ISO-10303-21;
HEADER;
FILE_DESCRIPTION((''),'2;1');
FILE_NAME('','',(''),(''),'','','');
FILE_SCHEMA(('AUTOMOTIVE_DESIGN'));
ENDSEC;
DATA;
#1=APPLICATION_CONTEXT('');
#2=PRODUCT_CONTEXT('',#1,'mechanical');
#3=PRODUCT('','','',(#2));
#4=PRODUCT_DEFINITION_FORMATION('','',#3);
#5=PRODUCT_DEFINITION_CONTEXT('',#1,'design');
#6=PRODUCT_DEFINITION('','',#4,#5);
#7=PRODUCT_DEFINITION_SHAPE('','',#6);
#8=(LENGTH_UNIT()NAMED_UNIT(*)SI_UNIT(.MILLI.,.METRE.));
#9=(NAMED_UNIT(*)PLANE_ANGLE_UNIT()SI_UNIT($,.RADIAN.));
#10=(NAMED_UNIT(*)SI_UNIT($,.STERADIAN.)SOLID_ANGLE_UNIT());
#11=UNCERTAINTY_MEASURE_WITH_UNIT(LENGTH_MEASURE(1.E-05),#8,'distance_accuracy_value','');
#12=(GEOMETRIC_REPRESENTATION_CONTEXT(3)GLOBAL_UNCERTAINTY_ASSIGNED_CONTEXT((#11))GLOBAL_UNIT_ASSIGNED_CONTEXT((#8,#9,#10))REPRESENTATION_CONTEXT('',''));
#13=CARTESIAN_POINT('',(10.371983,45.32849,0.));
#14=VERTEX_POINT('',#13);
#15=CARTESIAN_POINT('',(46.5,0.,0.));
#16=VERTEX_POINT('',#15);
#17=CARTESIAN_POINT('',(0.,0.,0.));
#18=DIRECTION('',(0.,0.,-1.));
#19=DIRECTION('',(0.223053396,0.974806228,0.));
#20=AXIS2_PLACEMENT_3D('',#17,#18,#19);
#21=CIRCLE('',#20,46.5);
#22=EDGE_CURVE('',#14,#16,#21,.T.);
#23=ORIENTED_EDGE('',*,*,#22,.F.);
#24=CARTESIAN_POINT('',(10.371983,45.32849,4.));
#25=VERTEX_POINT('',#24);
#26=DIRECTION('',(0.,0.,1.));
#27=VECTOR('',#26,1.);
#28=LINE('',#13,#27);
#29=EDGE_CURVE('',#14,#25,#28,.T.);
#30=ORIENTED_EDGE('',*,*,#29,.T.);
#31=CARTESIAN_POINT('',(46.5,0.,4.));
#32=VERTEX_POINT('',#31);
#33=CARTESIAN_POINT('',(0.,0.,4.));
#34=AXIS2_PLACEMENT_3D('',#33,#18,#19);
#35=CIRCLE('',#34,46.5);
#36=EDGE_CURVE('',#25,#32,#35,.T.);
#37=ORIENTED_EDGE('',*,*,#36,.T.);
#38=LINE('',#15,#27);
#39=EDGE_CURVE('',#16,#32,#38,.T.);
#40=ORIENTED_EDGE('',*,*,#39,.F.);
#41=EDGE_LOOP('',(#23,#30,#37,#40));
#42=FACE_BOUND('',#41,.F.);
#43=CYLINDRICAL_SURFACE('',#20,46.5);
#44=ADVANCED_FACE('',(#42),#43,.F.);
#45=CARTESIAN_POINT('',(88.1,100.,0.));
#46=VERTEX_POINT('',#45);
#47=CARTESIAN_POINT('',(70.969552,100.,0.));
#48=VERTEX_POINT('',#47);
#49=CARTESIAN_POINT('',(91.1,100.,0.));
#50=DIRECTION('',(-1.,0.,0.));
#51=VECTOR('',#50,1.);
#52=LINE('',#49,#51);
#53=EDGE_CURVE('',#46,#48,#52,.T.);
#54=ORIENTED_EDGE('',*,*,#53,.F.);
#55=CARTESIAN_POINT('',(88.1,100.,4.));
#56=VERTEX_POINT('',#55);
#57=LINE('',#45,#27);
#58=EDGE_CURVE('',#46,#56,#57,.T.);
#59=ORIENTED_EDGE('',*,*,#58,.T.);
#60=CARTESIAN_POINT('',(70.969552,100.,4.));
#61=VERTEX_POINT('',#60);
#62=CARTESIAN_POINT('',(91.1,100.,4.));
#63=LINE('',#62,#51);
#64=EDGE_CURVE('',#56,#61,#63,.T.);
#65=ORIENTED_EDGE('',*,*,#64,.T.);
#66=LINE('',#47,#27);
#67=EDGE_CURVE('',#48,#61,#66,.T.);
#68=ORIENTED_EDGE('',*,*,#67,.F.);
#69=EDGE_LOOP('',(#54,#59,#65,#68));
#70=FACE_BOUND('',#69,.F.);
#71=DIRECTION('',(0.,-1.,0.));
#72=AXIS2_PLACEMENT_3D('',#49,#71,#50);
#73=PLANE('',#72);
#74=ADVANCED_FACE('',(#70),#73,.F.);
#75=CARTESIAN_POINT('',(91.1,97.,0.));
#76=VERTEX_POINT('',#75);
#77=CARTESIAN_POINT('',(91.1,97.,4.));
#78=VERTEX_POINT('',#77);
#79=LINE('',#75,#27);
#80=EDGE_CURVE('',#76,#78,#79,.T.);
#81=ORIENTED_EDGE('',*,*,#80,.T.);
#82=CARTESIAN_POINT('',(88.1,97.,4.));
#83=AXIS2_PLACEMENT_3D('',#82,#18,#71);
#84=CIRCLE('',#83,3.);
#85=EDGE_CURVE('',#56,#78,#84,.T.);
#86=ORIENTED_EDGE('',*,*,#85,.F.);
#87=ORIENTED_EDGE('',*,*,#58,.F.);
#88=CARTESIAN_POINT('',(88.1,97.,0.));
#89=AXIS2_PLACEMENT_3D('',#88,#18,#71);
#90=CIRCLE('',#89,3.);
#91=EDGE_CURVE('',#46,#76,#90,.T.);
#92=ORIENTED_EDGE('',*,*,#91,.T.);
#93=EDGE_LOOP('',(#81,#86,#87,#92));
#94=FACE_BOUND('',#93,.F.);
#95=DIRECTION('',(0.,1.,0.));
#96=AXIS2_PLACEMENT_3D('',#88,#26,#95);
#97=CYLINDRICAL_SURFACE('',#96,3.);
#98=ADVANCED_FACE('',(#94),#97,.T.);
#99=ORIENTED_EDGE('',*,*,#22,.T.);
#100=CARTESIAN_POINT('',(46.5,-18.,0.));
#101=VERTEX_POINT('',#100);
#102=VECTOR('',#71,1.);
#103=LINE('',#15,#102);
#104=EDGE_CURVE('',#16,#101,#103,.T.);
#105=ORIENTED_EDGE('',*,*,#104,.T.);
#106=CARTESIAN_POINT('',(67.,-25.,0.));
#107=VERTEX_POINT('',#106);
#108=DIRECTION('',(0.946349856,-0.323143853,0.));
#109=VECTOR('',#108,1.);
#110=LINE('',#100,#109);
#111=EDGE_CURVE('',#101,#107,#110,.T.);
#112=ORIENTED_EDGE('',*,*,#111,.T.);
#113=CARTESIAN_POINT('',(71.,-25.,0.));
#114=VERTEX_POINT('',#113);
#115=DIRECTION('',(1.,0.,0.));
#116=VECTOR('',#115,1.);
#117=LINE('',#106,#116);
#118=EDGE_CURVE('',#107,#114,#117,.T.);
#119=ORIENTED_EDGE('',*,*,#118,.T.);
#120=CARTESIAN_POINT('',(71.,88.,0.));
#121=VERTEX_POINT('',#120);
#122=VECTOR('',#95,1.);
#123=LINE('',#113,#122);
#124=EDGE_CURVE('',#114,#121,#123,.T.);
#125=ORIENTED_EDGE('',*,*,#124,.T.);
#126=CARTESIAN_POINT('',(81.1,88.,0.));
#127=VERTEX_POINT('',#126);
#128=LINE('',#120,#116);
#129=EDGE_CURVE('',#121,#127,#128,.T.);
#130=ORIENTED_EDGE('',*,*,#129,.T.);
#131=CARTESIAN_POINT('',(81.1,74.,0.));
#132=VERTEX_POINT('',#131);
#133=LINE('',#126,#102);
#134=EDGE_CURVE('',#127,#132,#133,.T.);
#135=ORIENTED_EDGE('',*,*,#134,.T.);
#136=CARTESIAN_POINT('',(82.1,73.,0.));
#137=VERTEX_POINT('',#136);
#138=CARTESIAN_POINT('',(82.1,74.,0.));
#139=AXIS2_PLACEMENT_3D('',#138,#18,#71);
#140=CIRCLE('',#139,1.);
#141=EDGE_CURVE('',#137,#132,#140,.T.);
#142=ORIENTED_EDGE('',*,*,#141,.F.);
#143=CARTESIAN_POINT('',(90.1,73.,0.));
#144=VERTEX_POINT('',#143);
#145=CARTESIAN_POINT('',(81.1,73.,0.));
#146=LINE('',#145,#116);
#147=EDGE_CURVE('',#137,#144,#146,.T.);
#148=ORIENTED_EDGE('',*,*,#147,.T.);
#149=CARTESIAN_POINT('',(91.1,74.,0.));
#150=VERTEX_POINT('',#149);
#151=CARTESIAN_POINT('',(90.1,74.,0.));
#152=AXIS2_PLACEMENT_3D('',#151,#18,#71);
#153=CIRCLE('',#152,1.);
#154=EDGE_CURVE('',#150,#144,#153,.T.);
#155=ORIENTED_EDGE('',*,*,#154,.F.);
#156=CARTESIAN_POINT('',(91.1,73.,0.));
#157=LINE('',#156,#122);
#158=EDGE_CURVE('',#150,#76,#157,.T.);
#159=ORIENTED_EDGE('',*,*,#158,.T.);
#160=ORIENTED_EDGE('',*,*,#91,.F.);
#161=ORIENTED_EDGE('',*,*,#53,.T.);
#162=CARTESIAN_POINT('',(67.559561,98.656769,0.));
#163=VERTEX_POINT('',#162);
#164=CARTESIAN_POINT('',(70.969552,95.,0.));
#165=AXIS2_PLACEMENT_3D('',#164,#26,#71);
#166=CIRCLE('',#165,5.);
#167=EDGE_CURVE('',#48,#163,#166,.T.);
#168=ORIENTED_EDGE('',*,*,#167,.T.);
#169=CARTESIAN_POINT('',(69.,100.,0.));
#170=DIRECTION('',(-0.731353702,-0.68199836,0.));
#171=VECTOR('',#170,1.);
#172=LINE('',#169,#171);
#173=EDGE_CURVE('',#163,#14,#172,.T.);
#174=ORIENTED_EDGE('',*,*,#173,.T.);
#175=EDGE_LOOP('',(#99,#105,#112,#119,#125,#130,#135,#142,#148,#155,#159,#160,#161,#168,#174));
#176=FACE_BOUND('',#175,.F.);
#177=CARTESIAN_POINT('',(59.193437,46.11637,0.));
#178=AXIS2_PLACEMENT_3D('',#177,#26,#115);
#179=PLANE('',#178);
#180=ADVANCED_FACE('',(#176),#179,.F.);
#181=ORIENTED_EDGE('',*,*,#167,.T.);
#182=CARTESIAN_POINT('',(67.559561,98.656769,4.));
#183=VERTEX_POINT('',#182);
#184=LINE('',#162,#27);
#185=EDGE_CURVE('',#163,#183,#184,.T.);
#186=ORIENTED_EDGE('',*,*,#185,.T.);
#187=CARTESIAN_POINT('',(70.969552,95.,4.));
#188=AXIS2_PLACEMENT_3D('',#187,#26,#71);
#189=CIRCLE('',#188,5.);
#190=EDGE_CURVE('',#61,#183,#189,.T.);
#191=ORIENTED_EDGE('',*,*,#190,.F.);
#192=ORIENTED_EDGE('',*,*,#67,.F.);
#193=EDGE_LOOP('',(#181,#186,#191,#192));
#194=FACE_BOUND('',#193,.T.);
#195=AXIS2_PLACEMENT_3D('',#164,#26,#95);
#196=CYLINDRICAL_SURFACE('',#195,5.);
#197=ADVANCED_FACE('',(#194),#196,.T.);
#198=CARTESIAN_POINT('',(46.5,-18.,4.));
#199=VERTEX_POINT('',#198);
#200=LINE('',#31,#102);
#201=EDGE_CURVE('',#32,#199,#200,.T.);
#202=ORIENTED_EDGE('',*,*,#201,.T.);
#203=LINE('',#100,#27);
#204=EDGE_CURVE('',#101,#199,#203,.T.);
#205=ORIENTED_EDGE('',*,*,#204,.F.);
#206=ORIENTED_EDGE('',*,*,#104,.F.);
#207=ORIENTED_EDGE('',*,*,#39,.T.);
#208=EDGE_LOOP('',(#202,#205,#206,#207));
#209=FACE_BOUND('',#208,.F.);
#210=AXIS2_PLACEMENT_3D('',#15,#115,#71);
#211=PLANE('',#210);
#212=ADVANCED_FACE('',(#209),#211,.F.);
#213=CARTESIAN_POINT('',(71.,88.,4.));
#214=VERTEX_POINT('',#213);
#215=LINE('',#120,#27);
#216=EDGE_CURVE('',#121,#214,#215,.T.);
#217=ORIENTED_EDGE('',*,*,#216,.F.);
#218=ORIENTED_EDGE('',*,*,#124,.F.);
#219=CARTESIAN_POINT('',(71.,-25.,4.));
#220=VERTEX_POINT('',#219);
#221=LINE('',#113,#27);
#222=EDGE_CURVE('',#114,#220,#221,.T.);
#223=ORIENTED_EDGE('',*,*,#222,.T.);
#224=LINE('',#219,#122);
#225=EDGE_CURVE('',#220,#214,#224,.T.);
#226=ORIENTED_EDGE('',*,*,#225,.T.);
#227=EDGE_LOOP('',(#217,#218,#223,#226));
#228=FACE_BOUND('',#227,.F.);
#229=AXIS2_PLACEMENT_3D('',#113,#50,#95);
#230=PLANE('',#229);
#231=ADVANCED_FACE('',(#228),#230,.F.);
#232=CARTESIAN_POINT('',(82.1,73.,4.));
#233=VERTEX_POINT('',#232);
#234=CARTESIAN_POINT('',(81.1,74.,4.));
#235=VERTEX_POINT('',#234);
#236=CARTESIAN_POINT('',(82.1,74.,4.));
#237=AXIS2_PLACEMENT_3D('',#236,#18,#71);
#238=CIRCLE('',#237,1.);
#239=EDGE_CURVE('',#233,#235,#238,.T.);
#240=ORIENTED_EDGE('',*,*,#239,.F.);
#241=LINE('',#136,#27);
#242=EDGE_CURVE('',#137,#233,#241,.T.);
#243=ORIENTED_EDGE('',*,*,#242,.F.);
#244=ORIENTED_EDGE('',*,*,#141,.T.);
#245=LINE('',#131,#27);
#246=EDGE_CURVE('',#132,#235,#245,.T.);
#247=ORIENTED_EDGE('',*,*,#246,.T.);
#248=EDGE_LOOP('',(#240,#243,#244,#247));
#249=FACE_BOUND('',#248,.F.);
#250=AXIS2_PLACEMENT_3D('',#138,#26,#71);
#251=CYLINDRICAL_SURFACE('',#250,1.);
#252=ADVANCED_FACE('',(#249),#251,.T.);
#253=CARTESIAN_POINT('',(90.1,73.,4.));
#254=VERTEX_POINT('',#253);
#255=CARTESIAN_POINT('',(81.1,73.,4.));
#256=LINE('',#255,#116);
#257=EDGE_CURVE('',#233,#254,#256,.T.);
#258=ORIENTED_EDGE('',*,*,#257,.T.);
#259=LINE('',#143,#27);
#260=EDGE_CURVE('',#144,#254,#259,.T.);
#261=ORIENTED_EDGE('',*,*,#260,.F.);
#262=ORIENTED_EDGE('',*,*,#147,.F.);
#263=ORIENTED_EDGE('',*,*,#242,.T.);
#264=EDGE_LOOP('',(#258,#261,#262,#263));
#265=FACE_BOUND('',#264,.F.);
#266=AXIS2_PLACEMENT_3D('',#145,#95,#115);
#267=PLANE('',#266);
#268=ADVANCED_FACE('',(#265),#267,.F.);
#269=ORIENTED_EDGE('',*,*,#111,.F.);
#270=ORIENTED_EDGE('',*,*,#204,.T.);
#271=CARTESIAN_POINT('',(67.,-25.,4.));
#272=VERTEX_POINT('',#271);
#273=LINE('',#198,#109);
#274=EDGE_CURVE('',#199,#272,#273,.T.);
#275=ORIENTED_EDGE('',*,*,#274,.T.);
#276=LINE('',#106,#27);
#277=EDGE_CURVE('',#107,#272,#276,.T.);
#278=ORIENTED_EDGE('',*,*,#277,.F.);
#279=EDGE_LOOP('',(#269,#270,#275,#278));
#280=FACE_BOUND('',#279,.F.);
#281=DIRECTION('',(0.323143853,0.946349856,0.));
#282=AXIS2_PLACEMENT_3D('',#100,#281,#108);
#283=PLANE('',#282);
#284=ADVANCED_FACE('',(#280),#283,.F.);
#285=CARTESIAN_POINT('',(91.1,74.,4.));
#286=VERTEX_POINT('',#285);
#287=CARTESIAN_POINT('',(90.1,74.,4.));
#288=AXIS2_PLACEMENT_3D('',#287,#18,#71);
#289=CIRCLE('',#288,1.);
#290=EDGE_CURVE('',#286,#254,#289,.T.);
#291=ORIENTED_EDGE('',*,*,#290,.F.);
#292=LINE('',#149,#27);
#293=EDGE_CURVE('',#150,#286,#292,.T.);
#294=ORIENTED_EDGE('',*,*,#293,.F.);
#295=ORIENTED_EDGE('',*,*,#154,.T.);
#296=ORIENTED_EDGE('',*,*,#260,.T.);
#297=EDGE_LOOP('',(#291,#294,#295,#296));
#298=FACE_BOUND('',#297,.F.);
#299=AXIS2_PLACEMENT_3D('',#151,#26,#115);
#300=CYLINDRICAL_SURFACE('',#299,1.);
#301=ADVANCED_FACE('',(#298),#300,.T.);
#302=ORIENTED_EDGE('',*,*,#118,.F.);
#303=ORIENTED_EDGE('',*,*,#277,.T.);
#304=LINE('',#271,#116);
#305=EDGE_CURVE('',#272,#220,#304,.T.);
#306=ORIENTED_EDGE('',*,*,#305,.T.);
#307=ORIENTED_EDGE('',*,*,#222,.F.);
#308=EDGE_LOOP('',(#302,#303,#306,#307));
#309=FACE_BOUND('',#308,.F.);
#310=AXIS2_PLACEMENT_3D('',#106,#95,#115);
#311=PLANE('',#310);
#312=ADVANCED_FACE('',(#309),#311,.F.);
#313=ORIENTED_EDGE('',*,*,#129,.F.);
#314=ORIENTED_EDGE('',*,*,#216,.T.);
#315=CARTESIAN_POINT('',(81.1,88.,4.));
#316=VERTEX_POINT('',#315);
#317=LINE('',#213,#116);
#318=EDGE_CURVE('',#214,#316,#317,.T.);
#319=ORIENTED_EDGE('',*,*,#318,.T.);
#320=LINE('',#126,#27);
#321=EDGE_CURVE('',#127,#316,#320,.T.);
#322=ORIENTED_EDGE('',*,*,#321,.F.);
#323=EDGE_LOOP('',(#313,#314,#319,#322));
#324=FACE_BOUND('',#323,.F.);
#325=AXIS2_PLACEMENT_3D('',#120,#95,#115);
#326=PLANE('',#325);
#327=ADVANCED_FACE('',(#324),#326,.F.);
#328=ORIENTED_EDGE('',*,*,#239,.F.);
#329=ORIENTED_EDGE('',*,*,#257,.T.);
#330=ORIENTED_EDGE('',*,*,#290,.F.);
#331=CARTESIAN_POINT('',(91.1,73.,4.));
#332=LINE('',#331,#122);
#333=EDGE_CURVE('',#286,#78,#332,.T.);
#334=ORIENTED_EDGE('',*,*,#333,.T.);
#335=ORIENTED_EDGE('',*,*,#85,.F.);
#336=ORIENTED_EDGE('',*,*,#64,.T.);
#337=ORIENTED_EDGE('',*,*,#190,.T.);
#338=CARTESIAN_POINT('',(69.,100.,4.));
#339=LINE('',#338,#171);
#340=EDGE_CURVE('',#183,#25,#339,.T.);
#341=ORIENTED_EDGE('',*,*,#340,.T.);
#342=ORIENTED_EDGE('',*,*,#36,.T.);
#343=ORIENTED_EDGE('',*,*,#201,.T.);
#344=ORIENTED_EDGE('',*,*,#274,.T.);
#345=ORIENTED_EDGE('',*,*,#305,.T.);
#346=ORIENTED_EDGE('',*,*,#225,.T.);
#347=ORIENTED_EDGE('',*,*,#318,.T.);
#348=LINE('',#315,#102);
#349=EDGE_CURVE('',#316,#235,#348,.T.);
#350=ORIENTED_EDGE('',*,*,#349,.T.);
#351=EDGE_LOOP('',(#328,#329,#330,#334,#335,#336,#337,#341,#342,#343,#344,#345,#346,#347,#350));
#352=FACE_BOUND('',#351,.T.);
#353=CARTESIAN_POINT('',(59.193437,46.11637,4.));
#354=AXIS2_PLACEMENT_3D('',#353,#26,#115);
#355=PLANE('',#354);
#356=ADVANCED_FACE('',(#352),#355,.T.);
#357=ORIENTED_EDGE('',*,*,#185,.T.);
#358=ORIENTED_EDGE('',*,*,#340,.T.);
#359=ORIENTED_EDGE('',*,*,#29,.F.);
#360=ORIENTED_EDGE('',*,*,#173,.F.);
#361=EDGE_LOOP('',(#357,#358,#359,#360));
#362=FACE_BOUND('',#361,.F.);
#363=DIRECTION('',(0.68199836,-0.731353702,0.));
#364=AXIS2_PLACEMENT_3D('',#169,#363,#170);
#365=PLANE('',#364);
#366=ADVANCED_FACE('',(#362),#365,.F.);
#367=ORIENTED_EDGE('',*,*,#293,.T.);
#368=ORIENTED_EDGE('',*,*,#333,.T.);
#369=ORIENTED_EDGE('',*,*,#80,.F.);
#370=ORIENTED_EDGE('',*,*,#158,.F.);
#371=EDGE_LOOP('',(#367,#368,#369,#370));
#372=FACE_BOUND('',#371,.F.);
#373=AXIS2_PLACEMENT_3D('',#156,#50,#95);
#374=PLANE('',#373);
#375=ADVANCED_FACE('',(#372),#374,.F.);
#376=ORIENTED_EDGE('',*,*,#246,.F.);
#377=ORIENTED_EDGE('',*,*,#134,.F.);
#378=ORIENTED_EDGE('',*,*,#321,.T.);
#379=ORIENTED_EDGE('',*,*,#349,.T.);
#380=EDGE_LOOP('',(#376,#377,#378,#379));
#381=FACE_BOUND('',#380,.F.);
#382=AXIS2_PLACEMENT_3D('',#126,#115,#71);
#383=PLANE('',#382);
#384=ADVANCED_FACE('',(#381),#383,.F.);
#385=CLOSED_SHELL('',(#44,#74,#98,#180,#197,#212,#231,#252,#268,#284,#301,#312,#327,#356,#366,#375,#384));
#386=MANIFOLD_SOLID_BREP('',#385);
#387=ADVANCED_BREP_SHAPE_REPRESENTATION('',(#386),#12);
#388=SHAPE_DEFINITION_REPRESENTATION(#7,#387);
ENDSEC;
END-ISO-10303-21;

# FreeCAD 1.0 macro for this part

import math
import FreeCAD as App
import Part
import Sketcher

V = App.Vector
Q = App.Units.Quantity


def edges_at(feature, points):
    """Names of the edges that pass closest to the given points."""
    edges = feature.Shape.Edges
    near = lambda p: min(range(len(edges)), key=lambda i: edges[i].distToShape(Part.Vertex(*p))[0])
    return sorted({f"Edge{near(p) + 1}" for p in points})

doc = App.newDocument("Part")
body = doc.addObject("PartDesign::Body", "Body")

# Sketch on XY plane
sketch1 = body.newObject("Sketcher::SketchObject", "Sketch")
sketch1.AttachmentSupport = (doc.getObject("XY_Plane"), [""])
sketch1.MapMode = "FlatFace"
sketch1.addGeometry([
    Part.LineSegment(V(46.5, 0, 0), V(46.5, -18, 0)),  # 0
    Part.LineSegment(V(46.5, -18, 0), V(67, -25, 0)),  # 1
    Part.LineSegment(V(67, -25, 0), V(71, -25, 0)),  # 2
    Part.LineSegment(V(71, -25, 0), V(71, 88, 0)),  # 3
    Part.LineSegment(V(71, 88, 0), V(81.1, 88, 0)),  # 4
    Part.LineSegment(V(81.1, 88, 0), V(81.1, 73, 0)),  # 5
    Part.LineSegment(V(81.1, 73, 0), V(91.1, 73, 0)),  # 6
    Part.LineSegment(V(91.1, 73, 0), V(91.1, 100, 0)),  # 7
    Part.LineSegment(V(91.1, 100, 0), V(69, 100, 0)),  # 8
    Part.LineSegment(V(69, 100, 0), V(10.371983, 45.32849, 0)),  # 9
    Part.ArcOfCircle(Part.Circle(V(0, 0, 0), V(0, 0, 1), 46.5), math.radians(0), math.radians(77.111563)),  # 10
], False)
sketch1.addConstraint([
    Sketcher.Constraint("Coincident", 0, 2, 1, 1),
    Sketcher.Constraint("Coincident", 1, 2, 2, 1),
    Sketcher.Constraint("Coincident", 2, 2, 3, 1),
    Sketcher.Constraint("Coincident", 3, 2, 4, 1),
    Sketcher.Constraint("Coincident", 4, 2, 5, 1),
    Sketcher.Constraint("Coincident", 5, 2, 6, 1),
    Sketcher.Constraint("Coincident", 6, 2, 7, 1),
    Sketcher.Constraint("Coincident", 7, 2, 8, 1),
    Sketcher.Constraint("Coincident", 8, 2, 9, 1),
    Sketcher.Constraint("Coincident", 9, 2, 10, 2),
    Sketcher.Constraint("Tangent", 10, 1, 0, 1),
    Sketcher.Constraint("Vertical", 0),
    Sketcher.Constraint("Horizontal", 2),
    Sketcher.Constraint("Vertical", 3),
    Sketcher.Constraint("Horizontal", 4),
    Sketcher.Constraint("Vertical", 5),
    Sketcher.Constraint("Horizontal", 6),
    Sketcher.Constraint("Vertical", 7),
    Sketcher.Constraint("Horizontal", 8),
    Sketcher.Constraint("Coincident", 10, 3, -1, 1),
    Sketcher.Constraint("Radius", 10, 46.5),
    Sketcher.Constraint("DistanceX", 2, 1, 2, 2, 4.0),
    Sketcher.Constraint("DistanceX", 6, 1, 6, 2, 10.0),
    Sketcher.Constraint("DistanceY", 0, 2, 0, 1, 18.0),
    Sketcher.Constraint("DistanceY", 3, 1, 3, 2, 113.0),
    Sketcher.Constraint("DistanceY", 5, 2, 5, 1, 15.0),
    Sketcher.Constraint("DistanceY", 7, 1, 7, 2, 27.0),
    Sketcher.Constraint("Angle", 9, Q("-137 deg")),
    Sketcher.Constraint("DistanceX", 4, 1, 4, 2, 10.1),
    Sketcher.Constraint("DistanceX", 8, 2, 8, 1, 22.1),
    Sketcher.Constraint("DistanceX", -1, 1, 1, 2, 67.0),
    Sketcher.Constraint("DistanceY", 1, 2, -1, 1, 25.0),
])
pad1 = body.newObject("PartDesign::Pad", "Pad")
pad1.Profile = sketch1
pad1.Length = 4
doc.recompute()

fillet = body.newObject("PartDesign::Fillet", "Fillet")
fillet.Base = (pad1, edges_at(pad1, [(69, 100, 2)]))
fillet.Radius = 5
doc.recompute()

fillet2 = body.newObject("PartDesign::Fillet", "Fillet001")
fillet2.Base = (fillet, edges_at(fillet, [(91.1, 100, 2)]))
fillet2.Radius = 3
doc.recompute()

fillet3 = body.newObject("PartDesign::Fillet", "Fillet002")
fillet3.Base = (fillet2, edges_at(fillet2, [(91.1, 73, 2), (81.1, 73, 2)]))
fillet3.Radius = 1

doc.recompute()
